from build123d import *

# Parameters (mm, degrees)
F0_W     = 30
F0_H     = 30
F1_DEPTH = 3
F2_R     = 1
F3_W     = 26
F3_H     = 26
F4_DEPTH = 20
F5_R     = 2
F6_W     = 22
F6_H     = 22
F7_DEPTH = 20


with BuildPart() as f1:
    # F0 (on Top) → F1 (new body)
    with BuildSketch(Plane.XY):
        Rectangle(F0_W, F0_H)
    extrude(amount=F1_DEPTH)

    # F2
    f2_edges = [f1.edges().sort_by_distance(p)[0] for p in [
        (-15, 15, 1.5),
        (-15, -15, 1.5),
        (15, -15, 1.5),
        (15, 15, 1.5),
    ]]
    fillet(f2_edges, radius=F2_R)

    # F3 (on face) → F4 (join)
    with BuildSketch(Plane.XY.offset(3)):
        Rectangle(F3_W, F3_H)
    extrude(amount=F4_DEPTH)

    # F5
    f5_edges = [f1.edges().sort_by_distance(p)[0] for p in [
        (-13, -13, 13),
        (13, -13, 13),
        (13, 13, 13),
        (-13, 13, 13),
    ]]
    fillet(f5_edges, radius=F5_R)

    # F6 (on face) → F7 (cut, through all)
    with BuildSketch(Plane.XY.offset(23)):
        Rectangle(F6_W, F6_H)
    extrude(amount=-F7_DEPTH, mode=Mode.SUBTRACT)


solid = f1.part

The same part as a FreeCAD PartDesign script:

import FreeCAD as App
import Part
import Sketcher

V = App.Vector


def edges_at(feature, points):
    """Names of the edges that pass closest to the given points."""
    edges = feature.Shape.Edges
    near = lambda p: min(range(len(edges)), key=lambda i: edges[i].distToShape(Part.Vertex(*p))[0])
    return sorted({f"Edge{near(p) + 1}" for p in points})


def add_polygon(sketch, points):
    """Adds a closed chain of lines whose ends are joined by coincident constraints."""
    first, n = sketch.GeometryCount, len(points)
    for a, b in zip(points, points[1:] + points[:1]):
        sketch.addGeometry(Part.LineSegment(App.Vector(*a, 0), App.Vector(*b, 0)), False)
    for i in range(n):
        sketch.addConstraint(Sketcher.Constraint("Coincident", first + i, 2, first + (i + 1) % n, 1))

doc = App.newDocument("Part")
body = doc.addObject("PartDesign::Body", "Body")

# Sketch on XY plane
sketch1 = doc.addObject("Sketcher::SketchObject", "Sketch")
body.addObject(sketch1)
sketch1.AttachmentSupport = (doc.XY_Plane, [""])
sketch1.MapMode = "FlatFace"
add_polygon(sketch1, [(-15, 15), (-15, -15), (15, -15), (15, 15)])  # lines 0-3
sketch1.addConstraint([
    Sketcher.Constraint("Vertical", 0),
    Sketcher.Constraint("Horizontal", 1),
    Sketcher.Constraint("Vertical", 2),
    Sketcher.Constraint("Horizontal", 3),
    Sketcher.Constraint("Symmetric", 0, 2, 2, 2, -1, 1),
    Sketcher.Constraint("Equal", 3, 0),
    Sketcher.Constraint("DistanceX", 1, 1, 1, 2, 30.0),
])
pad1 = doc.addObject("PartDesign::Pad", "Pad")
body.addObject(pad1)
pad1.Profile = sketch1
pad1.Length = 3
doc.recompute()

fillet = doc.addObject("PartDesign::Fillet", "Fillet")
body.addObject(fillet)
fillet.Base = (pad1, edges_at(pad1, [
    (-15, 15, 1.5),
    (-15, -15, 1.5),
    (15, -15, 1.5),
    (15, 15, 1.5),
]))
fillet.Radius = 1

# Sketch on XY plane
sketch2 = doc.addObject("Sketcher::SketchObject", "Sketch001")
body.addObject(sketch2)
sketch2.AttachmentSupport = (doc.XY_Plane, [""])
sketch2.MapMode = "FlatFace"
sketch2.AttachmentOffset = App.Placement(V(0, 0, 3), App.Rotation())
add_polygon(sketch2, [(-13, 13), (-13, -13), (13, -13), (13, 13)])  # lines 0-3
sketch2.addConstraint([
    Sketcher.Constraint("Vertical", 0),
    Sketcher.Constraint("Horizontal", 1),
    Sketcher.Constraint("Vertical", 2),
    Sketcher.Constraint("Horizontal", 3),
    Sketcher.Constraint("Symmetric", 0, 2, 2, 2, -1, 1),
    Sketcher.Constraint("Equal", 3, 0),
    Sketcher.Constraint("DistanceX", 1, 1, 1, 2, 26.0),
])
pad2 = doc.addObject("PartDesign::Pad", "Pad001")
body.addObject(pad2)
pad2.Profile = sketch2
pad2.Length = 20
doc.recompute()

fillet2 = doc.addObject("PartDesign::Fillet", "Fillet001")
body.addObject(fillet2)
fillet2.Base = (pad2, edges_at(pad2, [
    (-13, -13, 13),
    (13, -13, 13),
    (13, 13, 13),
    (-13, 13, 13),
]))
fillet2.Radius = 2

# Sketch on XY plane
sketch3 = doc.addObject("Sketcher::SketchObject", "Sketch002")
body.addObject(sketch3)
sketch3.AttachmentSupport = (doc.XY_Plane, [""])
sketch3.MapMode = "FlatFace"
sketch3.AttachmentOffset = App.Placement(V(0, 0, 23), App.Rotation())
add_polygon(sketch3, [(-11, 11), (-11, -11), (11, -11), (11, 11)])  # lines 0-3
sketch3.addConstraint([
    Sketcher.Constraint("Vertical", 0),
    Sketcher.Constraint("Horizontal", 1),
    Sketcher.Constraint("Vertical", 2),
    Sketcher.Constraint("Horizontal", 3),
    Sketcher.Constraint("Symmetric", 0, 2, 2, 2, -1, 1),
    Sketcher.Constraint("Equal", 3, 0),
    Sketcher.Constraint("DistanceX", 1, 1, 1, 2, 22.0),
])
pocket1 = doc.addObject("PartDesign::Pocket", "Pocket")
body.addObject(pocket1)
pocket1.Profile = sketch3
pocket1.Length = 20

doc.recompute()
